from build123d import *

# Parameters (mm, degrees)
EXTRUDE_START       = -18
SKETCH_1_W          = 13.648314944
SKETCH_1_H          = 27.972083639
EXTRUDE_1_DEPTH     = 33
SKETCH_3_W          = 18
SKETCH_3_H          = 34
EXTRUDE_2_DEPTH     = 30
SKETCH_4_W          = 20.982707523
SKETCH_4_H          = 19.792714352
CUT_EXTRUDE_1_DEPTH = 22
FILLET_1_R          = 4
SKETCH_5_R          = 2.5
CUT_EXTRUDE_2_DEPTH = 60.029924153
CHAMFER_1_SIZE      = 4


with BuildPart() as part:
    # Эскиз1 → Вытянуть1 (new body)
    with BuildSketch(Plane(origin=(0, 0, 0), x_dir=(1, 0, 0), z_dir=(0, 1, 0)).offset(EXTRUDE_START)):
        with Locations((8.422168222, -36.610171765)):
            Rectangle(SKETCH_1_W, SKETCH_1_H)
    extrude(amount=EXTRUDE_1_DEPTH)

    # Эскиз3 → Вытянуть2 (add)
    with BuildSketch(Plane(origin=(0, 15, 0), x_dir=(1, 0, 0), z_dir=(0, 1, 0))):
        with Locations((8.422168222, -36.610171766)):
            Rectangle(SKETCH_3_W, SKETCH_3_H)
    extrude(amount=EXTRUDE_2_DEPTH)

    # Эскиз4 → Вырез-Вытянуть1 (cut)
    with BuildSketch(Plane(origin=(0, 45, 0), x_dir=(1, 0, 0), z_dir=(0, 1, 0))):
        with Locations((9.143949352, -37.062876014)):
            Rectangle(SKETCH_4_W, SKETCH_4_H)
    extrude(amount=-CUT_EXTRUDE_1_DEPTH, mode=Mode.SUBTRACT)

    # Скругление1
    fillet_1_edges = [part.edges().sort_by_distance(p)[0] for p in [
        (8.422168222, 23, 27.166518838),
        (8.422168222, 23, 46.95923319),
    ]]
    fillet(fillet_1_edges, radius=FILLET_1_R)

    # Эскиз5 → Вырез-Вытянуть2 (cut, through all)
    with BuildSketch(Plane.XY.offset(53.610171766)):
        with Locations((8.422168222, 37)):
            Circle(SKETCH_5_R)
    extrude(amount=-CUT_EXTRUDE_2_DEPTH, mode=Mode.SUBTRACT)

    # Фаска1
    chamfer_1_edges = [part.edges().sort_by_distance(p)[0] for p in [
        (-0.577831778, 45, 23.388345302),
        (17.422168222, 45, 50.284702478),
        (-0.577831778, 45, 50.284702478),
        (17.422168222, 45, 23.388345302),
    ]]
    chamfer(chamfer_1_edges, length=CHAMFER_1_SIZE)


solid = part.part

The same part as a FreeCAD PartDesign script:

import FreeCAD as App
import Part
import Sketcher

V = App.Vector


def edges_at(feature, points):
    """Names of the edges that pass closest to the given points."""
    edges = feature.Shape.Edges
    near = lambda p: min(range(len(edges)), key=lambda i: edges[i].distToShape(Part.Vertex(*p))[0])
    return sorted({f"Edge{near(p) + 1}" for p in points})

doc = App.newDocument("Part")
params = doc.addObject("Spreadsheet::Sheet", "Params")
for row, (alias, value) in enumerate([
    ("pad1_length", "33 mm"),
    ("sketch2_width", "18 mm"),
    ("sketch2_height", "34 mm"),
    ("pad2_length", "30 mm"),
    ("pocket1_length", "22 mm"),
    ("fillet_radius", "4 mm"),
    ("sketch4_diameter", "5 mm"),
    ("chamfer_size", "4 mm"),
], start=1):
    params.set(f"A{row}", alias)
    params.set(f"B{row}", "=" + value)
    params.setAlias(f"B{row}", alias)

body = doc.addObject("PartDesign::Body", "Body")

sketch1 = body.newObject("Sketcher::SketchObject", "Sketch")
sketch1.AttachmentSupport = (doc.getObject("XZ_Plane"), [""])
sketch1.MapMode = "FlatFace"
sketch1.AttachmentOffset = App.Placement(V(0, 0, 18), App.Rotation())
sketch1.addGeometry([
    Part.LineSegment(V(2, 23, 0), V(2, 51, 0)),
    Part.LineSegment(V(2, 51, 0), V(15, 51, 0)),
    Part.LineSegment(V(15, 51, 0), V(15, 23, 0)),
    Part.LineSegment(V(15, 23, 0), V(2, 23, 0)),
], False)
sketch1.addConstraint([
    Sketcher.Constraint("Coincident", 0, 2, 1, 1),
    Sketcher.Constraint("Coincident", 1, 2, 2, 1),
    Sketcher.Constraint("Coincident", 2, 2, 3, 1),
    Sketcher.Constraint("Coincident", 3, 2, 0, 1),
    Sketcher.Constraint("Vertical", 0),
    Sketcher.Constraint("Horizontal", 1),
    Sketcher.Constraint("Vertical", 2),
    Sketcher.Constraint("Horizontal", 3),
    Sketcher.Constraint("DistanceX", 1, 1, 1, 2, 13.648315),
    Sketcher.Constraint("DistanceY", 0, 1, 0, 2, 27.972084),
    Sketcher.Constraint("DistanceX", -1, 1, 0, 2, 1.598011),
    Sketcher.Constraint("DistanceY", -1, 1, 2, 2, 22.62413),
])
pad1 = body.newObject("PartDesign::Pad", "Pad")
pad1.Profile = sketch1
pad1.setExpression("Length", "Params.pad1_length")
pad1.Reversed = True

sketch2 = body.newObject("Sketcher::SketchObject", "Sketch001")
sketch2.AttachmentSupport = (doc.getObject("XZ_Plane"), [""])
sketch2.MapMode = "FlatFace"
sketch2.AttachmentOffset = App.Placement(V(0, 0, -15), App.Rotation())
sketch2.addGeometry([
    Part.LineSegment(V(-1, 20, 0), V(-1, 54, 0)),
    Part.LineSegment(V(-1, 54, 0), V(17, 54, 0)),
    Part.LineSegment(V(17, 54, 0), V(17, 20, 0)),
    Part.LineSegment(V(17, 20, 0), V(-1, 20, 0)),
], False)
sketch2.addConstraint([
    Sketcher.Constraint("Coincident", 0, 2, 1, 1),
    Sketcher.Constraint("Coincident", 1, 2, 2, 1),
    Sketcher.Constraint("Coincident", 2, 2, 3, 1),
    Sketcher.Constraint("Coincident", 3, 2, 0, 1),
    Sketcher.Constraint("Vertical", 0),
    Sketcher.Constraint("Horizontal", 1),
    Sketcher.Constraint("Vertical", 2),
    Sketcher.Constraint("Horizontal", 3),
    Sketcher.Constraint("DistanceX", 1, 1, 1, 2, 18.0),
    Sketcher.Constraint("DistanceY", 0, 1, 0, 2, 34.0),
    Sketcher.Constraint("DistanceX", 0, 2, -1, 1, 0.577832),
    Sketcher.Constraint("DistanceY", -1, 1, 0, 2, 53.610172),
])
sketch2.setExpression("Constraints[8]", "Params.sketch2_width")
sketch2.setExpression("Constraints[9]", "Params.sketch2_height")
pad2 = body.newObject("PartDesign::Pad", "Pad001")
pad2.Profile = sketch2
pad2.setExpression("Length", "Params.pad2_length")
pad2.Reversed = True

sketch3 = body.newObject("Sketcher::SketchObject", "Sketch002")
sketch3.AttachmentSupport = (doc.getObject("XZ_Plane"), [""])
sketch3.MapMode = "FlatFace"
sketch3.AttachmentOffset = App.Placement(V(0, 0, -45), App.Rotation())
sketch3.addGeometry([
    Part.LineSegment(V(-1, 27, 0), V(-1, 47, 0)),
    Part.LineSegment(V(-1, 47, 0), V(20, 47, 0)),
    Part.LineSegment(V(20, 47, 0), V(20, 27, 0)),
    Part.LineSegment(V(20, 27, 0), V(-1, 27, 0)),
], False)
sketch3.addConstraint([
    Sketcher.Constraint("Coincident", 0, 2, 1, 1),
    Sketcher.Constraint("Coincident", 1, 2, 2, 1),
    Sketcher.Constraint("Coincident", 2, 2, 3, 1),
    Sketcher.Constraint("Coincident", 3, 2, 0, 1),
    Sketcher.Constraint("Vertical", 0),
    Sketcher.Constraint("Horizontal", 1),
    Sketcher.Constraint("Vertical", 2),
    Sketcher.Constraint("Horizontal", 3),
    Sketcher.Constraint("DistanceX", 1, 1, 1, 2, 20.982708),
    Sketcher.Constraint("DistanceY", 0, 1, 0, 2, 19.792714),
    Sketcher.Constraint("DistanceY", -1, 1, 2, 2, 27.166519),
    Sketcher.Constraint("DistanceX", 0, 2, -1, 1, 1.347404),
])
pocket1 = body.newObject("PartDesign::Pocket", "Pocket")
pocket1.Profile = sketch3
pocket1.setExpression("Length", "Params.pocket1_length")
pocket1.Reversed = True
doc.recompute()

fillet = body.newObject("PartDesign::Fillet", "Fillet")
fillet.Base = (pocket1, edges_at(pocket1, [(8.422, 23, 27.167), (8.422, 23, 46.959)]))
fillet.setExpression("Radius", "Params.fillet_radius")

sketch4 = body.newObject("Sketcher::SketchObject", "Sketch003")
sketch4.AttachmentSupport = (doc.getObject("XY_Plane"), [""])
sketch4.MapMode = "FlatFace"
sketch4.AttachmentOffset = App.Placement(V(0, 0, 53.610172), App.Rotation())
sketch4.addGeometry(Part.Circle(V(8.4, 37, 0), V(0, 0, 1), 2.5), False)
sketch4.addConstraint([
    Sketcher.Constraint("Diameter", 0, 5.0),
    Sketcher.Constraint("DistanceY", -1, 1, 0, 3, 37.0),
    Sketcher.Constraint("DistanceX", -1, 1, 0, 3, 8.422168),
])
sketch4.setExpression("Constraints[0]", "Params.sketch4_diameter")
pocket2 = body.newObject("PartDesign::Pocket", "Pocket001")
pocket2.Profile = sketch4
pocket2.Type = "ThroughAll"
doc.recompute()

chamfer = body.newObject("PartDesign::Chamfer", "Chamfer")
chamfer.Base = (pocket2, edges_at(pocket2, [
    (-0.578, 45, 23.388),
    (17.422, 45, 50.285),
    (-0.578, 45, 50.285),
    (17.422, 45, 23.388),
]))
chamfer.setExpression("Size", "Params.chamfer_size")

doc.recompute()
